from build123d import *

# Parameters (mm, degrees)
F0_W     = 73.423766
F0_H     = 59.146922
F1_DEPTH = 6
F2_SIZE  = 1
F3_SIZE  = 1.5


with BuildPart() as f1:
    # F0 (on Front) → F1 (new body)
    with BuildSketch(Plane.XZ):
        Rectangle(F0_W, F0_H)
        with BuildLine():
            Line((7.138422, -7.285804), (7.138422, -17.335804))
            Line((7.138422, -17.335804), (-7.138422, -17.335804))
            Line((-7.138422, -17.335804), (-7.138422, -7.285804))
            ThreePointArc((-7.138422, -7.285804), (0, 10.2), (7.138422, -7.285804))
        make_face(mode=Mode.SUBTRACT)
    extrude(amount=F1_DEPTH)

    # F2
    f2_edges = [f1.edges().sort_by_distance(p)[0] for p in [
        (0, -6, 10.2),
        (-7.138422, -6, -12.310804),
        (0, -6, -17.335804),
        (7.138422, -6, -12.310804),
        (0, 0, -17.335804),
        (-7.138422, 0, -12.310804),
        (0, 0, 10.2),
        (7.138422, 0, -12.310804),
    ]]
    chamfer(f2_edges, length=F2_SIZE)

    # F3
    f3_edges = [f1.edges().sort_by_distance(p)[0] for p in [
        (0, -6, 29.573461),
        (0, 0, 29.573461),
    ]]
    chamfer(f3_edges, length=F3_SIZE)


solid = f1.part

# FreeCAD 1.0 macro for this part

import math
import FreeCAD as App
import Part
import Sketcher
Q = App.Units.Quantity


def edges_at(feature, points):
    """Names of the edges that pass closest to the given points."""
    edges = feature.Shape.Edges
    near = lambda p: min(range(len(edges)), key=lambda i: edges[i].distToShape(Part.Vertex(*p))[0])
    return sorted({f"Edge{near(p) + 1}" for p in points})

doc = App.newDocument("Part")
body = doc.addObject("PartDesign::Body", "Body")

sketch1 = body.newObject("Sketcher::SketchObject", "Sketch")
sketch1.AttachmentSupport = (doc.getObject("XZ_Plane"), [""])
sketch1.MapMode = "FlatFace"
sketch1.addGeometry([
    Part.LineSegment(App.Vector(-37, 30, 0), App.Vector(-37, -30, 0)),
    Part.LineSegment(App.Vector(-37, -30, 0), App.Vector(37, -30, 0)),
    Part.LineSegment(App.Vector(37, -30, 0), App.Vector(37, 30, 0)),
    Part.LineSegment(App.Vector(37, 30, 0), App.Vector(-37, 30, 0)),
    Part.ArcOfCircle(Part.Circle(App.Vector(0, 0, 0), App.Vector(0, 0, 1), 10), math.radians(-46), math.radians(226)),
    Part.LineSegment(App.Vector(7, -7, 0), App.Vector(7, -17, 0)),
    Part.LineSegment(App.Vector(7, -17, 0), App.Vector(-7, -17, 0)),
    Part.LineSegment(App.Vector(-7, -17, 0), App.Vector(-7, -7, 0)),
], False)
sketch1.addConstraint([
    Sketcher.Constraint("Coincident", 0, 2, 1, 1),
    Sketcher.Constraint("Coincident", 1, 2, 2, 1),
    Sketcher.Constraint("Coincident", 2, 2, 3, 1),
    Sketcher.Constraint("Coincident", 3, 2, 0, 1),
    Sketcher.Constraint("Coincident", 4, 1, 5, 1),
    Sketcher.Constraint("Coincident", 5, 2, 6, 1),
    Sketcher.Constraint("Coincident", 6, 2, 7, 1),
    Sketcher.Constraint("Coincident", 7, 2, 4, 2),
    Sketcher.Constraint("Vertical", 0),
    Sketcher.Constraint("Horizontal", 1),
    Sketcher.Constraint("Vertical", 2),
    Sketcher.Constraint("Horizontal", 3),
    Sketcher.Constraint("Vertical", 5),
    Sketcher.Constraint("Horizontal", 6),
    Sketcher.Constraint("Vertical", 7),
    Sketcher.Constraint("Coincident", 4, 3, -1, 1),
    Sketcher.Constraint("Symmetric", 0, 2, 2, 2, -1, 1),
    Sketcher.Constraint("Horizontal", 4, 1, 7, 2),
    Sketcher.Constraint("Radius", 4, Q("10.2 mm")),
    Sketcher.Constraint("DistanceY", 5, 2, 5, 1, Q("10.05 mm")),
    Sketcher.Constraint("DistanceX", 1, 1, 1, 2, Q("73.423766 mm")),
    Sketcher.Constraint("DistanceX", 6, 2, 6, 1, Q("14.276844 mm")),
    Sketcher.Constraint("DistanceY", 0, 2, 0, 1, Q("59.146922 mm")),
])
pad1 = body.newObject("PartDesign::Pad", "Pad")
pad1.Profile = sketch1
pad1.Length = 6
doc.recompute()

chamfer = body.newObject("PartDesign::Chamfer", "Chamfer")
chamfer.Base = (pad1, edges_at(pad1, [
    (0, -6, 10.2),
    (-7.138, -6, -12.311),
    (0, -6, -17.336),
    (7.138, -6, -12.311),
    (0, 0, -17.336),
    (-7.138, 0, -12.311),
    (0, 0, 10.2),
    (7.138, 0, -12.311),
]))
chamfer.Size = 1
doc.recompute()

chamfer2 = body.newObject("PartDesign::Chamfer", "Chamfer001")
chamfer2.Base = (chamfer, edges_at(chamfer, [(0, -6, 29.573), (0, 0, 29.573)]))
chamfer2.Size = 1.5

doc.recompute()
